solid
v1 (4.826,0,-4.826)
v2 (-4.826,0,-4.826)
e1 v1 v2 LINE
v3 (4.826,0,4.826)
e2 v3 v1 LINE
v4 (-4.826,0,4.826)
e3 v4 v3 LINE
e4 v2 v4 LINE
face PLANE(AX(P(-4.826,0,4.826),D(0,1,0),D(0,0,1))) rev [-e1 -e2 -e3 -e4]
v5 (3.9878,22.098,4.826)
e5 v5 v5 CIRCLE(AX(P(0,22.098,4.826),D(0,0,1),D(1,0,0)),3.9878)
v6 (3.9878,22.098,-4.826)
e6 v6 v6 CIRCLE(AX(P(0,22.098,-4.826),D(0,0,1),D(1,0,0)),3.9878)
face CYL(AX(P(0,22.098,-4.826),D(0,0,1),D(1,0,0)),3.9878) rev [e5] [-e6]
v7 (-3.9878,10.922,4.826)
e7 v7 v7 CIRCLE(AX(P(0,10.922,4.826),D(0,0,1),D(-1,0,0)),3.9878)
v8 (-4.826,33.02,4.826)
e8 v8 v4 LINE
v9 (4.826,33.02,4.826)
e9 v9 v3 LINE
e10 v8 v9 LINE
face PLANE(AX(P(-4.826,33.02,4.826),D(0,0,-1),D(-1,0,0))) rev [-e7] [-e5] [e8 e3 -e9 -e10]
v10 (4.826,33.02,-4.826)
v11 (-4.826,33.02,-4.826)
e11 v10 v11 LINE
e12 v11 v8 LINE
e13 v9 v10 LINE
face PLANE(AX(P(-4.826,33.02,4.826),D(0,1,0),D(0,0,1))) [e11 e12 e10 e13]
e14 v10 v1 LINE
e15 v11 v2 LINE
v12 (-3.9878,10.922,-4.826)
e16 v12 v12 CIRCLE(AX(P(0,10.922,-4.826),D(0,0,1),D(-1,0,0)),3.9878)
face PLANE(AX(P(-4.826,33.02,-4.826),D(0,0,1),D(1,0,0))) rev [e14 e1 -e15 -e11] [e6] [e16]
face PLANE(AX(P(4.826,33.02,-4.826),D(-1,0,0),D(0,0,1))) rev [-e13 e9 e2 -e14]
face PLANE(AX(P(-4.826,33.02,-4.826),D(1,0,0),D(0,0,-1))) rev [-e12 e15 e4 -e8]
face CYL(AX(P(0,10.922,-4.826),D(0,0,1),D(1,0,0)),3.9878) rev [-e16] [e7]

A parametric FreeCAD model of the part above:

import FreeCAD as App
import Part
import Sketcher
Q = App.Units.Quantity

doc = App.newDocument("Part")
body = doc.addObject("PartDesign::Body", "Body")

sketch1 = body.newObject("Sketcher::SketchObject", "Sketch")
sketch1.AttachmentSupport = (doc.getObject("XZ_Plane"), [""])
sketch1.MapMode = "FlatFace"
sketch1.addGeometry([
    Part.LineSegment(App.Vector(-5, -5, 0), App.Vector(-5, 5, 0)),
    Part.LineSegment(App.Vector(-5, 5, 0), App.Vector(5, 5, 0)),
    Part.LineSegment(App.Vector(5, 5, 0), App.Vector(5, -5, 0)),
    Part.LineSegment(App.Vector(5, -5, 0), App.Vector(-5, -5, 0)),
], False)
sketch1.addConstraint([
    Sketcher.Constraint("Coincident", 0, 2, 1, 1),
    Sketcher.Constraint("Coincident", 1, 2, 2, 1),
    Sketcher.Constraint("Coincident", 2, 2, 3, 1),
    Sketcher.Constraint("Coincident", 3, 2, 0, 1),
    Sketcher.Constraint("Vertical", 0),
    Sketcher.Constraint("Horizontal", 1),
    Sketcher.Constraint("Vertical", 2),
    Sketcher.Constraint("Horizontal", 3),
    Sketcher.Constraint("Symmetric", 0, 2, 2, 2, -1, 1),
    Sketcher.Constraint("Equal", 3, 0),
    Sketcher.Constraint("DistanceX", 1, 1, 1, 2, Q("0.38 in")),
])
pad1 = body.newObject("PartDesign::Pad", "Pad")
pad1.Profile = sketch1
pad1.Length = Q("1.3 in")
pad1.Reversed = True

sketch2 = body.newObject("Sketcher::SketchObject", "Sketch001")
sketch2.AttachmentSupport = (doc.getObject("XY_Plane"), [""])
sketch2.MapMode = "FlatFace"
sketch2.AttachmentOffset = App.Placement(App.Vector(0, 0, 0.19 * 25.4), App.Rotation())
sketch2.addGeometry([
    Part.Circle(App.Vector(0, 22.1, 0), App.Vector(0, 0, 1), 4),
    Part.Circle(App.Vector(0, 10.9, 0), App.Vector(0, 0, 1), 4),
], False)
sketch2.addConstraint([
    Sketcher.Constraint("Equal", 0, 1),
    Sketcher.Constraint("PointOnObject", 0, 3, -2),
    Sketcher.Constraint("PointOnObject", 1, 3, -2),
    Sketcher.Constraint("Diameter", 0, Q("0.314 in")),
    Sketcher.Constraint("DistanceY", -1, 1, 0, 3, Q("0.87 in")),
    Sketcher.Constraint("DistanceY", -1, 1, 1, 3, Q("0.43 in")),
])
pocket1 = body.newObject("PartDesign::Pocket", "Pocket")
pocket1.Profile = sketch2
pocket1.Type = "ThroughAll"

doc.recompute()
